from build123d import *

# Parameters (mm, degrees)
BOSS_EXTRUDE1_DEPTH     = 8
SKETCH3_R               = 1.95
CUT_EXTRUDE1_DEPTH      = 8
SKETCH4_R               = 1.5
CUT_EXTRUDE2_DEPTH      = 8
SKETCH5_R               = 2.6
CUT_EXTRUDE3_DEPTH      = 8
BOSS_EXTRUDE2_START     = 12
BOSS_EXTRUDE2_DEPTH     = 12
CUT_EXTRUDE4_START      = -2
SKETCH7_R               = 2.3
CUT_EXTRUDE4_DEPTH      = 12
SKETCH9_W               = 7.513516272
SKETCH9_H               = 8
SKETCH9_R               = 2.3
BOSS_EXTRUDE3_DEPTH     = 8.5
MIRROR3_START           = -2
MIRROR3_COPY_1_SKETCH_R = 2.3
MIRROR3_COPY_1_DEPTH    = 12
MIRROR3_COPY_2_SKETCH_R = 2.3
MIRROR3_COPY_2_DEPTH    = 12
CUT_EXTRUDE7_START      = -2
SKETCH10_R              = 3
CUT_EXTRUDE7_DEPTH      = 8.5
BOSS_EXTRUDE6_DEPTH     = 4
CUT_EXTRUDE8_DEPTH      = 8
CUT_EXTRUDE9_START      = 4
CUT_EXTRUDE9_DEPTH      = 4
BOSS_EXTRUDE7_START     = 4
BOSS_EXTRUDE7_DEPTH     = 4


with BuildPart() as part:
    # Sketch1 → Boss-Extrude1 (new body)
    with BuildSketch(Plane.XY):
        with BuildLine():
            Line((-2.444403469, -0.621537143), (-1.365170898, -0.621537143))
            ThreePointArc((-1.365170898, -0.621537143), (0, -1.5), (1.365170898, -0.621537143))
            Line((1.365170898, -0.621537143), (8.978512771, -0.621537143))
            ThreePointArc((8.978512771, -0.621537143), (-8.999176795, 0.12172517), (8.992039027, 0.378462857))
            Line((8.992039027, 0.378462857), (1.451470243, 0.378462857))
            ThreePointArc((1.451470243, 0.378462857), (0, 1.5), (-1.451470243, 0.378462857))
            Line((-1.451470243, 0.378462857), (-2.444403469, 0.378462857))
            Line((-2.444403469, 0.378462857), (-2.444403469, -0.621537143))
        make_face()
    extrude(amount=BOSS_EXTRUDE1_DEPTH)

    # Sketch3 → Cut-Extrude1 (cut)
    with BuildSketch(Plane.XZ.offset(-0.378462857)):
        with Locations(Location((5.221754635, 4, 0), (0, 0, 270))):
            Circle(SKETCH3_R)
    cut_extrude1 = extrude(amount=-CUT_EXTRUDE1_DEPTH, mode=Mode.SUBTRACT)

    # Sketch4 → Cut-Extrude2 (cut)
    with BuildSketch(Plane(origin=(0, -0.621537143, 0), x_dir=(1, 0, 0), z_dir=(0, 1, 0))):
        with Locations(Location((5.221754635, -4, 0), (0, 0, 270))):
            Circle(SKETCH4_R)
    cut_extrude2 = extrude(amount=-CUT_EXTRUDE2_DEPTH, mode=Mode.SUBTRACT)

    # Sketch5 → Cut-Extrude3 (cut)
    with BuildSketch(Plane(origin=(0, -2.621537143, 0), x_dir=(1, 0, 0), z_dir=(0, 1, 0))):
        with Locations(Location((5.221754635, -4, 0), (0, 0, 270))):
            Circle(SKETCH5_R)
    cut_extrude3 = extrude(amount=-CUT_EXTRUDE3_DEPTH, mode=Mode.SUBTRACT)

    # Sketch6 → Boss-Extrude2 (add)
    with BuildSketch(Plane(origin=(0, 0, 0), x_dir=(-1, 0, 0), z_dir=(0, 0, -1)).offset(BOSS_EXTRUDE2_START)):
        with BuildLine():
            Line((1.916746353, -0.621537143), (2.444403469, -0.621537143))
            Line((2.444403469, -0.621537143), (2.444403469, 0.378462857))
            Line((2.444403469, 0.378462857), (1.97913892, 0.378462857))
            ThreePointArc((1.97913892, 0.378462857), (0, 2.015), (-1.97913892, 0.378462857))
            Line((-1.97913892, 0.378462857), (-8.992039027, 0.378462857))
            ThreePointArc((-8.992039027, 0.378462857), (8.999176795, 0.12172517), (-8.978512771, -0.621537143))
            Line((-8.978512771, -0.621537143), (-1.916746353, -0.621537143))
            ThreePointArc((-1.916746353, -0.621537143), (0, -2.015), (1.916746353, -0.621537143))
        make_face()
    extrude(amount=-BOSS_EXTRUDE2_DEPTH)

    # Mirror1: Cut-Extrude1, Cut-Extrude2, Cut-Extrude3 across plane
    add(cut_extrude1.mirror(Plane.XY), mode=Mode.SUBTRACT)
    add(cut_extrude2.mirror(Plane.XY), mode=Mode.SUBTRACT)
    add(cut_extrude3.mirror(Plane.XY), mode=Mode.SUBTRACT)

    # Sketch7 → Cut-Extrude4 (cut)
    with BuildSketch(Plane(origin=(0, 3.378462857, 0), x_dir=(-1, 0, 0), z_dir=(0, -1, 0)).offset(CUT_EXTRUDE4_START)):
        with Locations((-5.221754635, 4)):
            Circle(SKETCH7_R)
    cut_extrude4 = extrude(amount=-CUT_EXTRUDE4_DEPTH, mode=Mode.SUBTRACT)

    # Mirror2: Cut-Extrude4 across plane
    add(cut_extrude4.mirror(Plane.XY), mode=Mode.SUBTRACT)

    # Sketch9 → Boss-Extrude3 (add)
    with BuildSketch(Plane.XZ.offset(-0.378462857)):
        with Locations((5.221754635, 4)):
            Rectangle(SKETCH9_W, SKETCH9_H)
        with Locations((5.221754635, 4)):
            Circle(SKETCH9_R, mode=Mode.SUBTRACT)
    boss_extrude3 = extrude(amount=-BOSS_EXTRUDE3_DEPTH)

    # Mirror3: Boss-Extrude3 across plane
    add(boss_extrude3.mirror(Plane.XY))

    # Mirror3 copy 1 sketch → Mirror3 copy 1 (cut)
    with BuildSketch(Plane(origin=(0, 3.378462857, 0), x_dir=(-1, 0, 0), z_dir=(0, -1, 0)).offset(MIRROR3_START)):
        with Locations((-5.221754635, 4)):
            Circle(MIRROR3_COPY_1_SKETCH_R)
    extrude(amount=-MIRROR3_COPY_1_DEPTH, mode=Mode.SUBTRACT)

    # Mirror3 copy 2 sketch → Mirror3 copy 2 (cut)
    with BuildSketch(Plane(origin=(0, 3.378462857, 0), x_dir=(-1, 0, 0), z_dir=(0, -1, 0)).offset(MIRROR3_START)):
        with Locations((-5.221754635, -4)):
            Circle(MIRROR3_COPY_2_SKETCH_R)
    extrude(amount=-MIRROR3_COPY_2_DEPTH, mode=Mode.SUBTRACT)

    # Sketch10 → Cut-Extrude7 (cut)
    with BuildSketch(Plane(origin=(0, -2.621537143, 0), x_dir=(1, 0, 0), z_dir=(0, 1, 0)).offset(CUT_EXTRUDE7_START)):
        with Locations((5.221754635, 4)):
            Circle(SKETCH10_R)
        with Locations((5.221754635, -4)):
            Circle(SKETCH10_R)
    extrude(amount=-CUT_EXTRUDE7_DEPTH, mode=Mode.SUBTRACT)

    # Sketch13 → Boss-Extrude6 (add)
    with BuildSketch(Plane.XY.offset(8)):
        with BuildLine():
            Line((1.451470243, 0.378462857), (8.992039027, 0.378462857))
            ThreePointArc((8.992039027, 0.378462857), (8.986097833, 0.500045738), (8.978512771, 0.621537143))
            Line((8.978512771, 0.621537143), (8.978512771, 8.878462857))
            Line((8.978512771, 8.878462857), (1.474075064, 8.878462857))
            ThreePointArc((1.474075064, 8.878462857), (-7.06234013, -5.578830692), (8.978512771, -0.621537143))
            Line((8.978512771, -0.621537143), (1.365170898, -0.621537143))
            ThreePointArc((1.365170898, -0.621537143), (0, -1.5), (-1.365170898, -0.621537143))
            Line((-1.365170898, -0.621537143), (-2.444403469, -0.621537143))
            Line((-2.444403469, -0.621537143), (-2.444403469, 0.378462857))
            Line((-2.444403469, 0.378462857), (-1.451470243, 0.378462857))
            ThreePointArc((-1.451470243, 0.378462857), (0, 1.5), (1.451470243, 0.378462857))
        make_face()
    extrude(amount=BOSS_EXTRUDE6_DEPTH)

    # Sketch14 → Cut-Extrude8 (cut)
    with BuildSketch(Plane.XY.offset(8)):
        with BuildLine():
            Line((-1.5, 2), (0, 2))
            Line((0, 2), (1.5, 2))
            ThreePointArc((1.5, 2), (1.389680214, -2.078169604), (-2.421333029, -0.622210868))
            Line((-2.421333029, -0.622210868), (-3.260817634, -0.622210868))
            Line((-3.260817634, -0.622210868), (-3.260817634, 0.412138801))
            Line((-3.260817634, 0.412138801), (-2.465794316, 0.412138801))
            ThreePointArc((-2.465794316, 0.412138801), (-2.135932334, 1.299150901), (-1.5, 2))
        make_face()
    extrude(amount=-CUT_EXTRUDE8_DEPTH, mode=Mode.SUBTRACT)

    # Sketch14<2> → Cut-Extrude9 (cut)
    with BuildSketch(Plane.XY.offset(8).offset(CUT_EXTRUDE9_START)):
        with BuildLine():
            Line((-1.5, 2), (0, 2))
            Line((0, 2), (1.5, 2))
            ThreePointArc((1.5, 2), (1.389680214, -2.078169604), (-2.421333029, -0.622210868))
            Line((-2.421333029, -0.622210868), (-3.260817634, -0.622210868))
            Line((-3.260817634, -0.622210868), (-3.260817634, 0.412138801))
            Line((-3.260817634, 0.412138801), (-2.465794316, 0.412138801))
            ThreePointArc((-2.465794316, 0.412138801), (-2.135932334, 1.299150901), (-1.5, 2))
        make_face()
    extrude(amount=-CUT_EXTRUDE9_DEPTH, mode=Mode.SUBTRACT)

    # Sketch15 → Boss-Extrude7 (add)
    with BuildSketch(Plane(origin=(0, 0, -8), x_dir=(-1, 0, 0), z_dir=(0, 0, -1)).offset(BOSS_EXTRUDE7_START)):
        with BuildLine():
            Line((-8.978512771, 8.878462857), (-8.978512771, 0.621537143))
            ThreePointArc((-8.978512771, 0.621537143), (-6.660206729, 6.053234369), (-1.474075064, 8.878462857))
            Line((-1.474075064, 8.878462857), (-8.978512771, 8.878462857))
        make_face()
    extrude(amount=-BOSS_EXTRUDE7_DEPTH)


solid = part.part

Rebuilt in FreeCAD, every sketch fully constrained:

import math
import FreeCAD as App
import Part
import Sketcher


def add_polygon(sketch, points):
    """Adds a closed chain of lines whose ends are joined by coincident constraints."""
    first, n = sketch.GeometryCount, len(points)
    for a, b in zip(points, points[1:] + points[:1]):
        sketch.addGeometry(Part.LineSegment(App.Vector(*a, 0), App.Vector(*b, 0)), False)
    for i in range(n):
        sketch.addConstraint(Sketcher.Constraint("Coincident", first + i, 2, first + (i + 1) % n, 1))

doc = App.newDocument("Part")
body = doc.addObject("PartDesign::Body", "Body")

sketch1 = body.newObject("Sketcher::SketchObject", "Sketch")
sketch1.AttachmentSupport = (doc.getObject("XY_Plane"), [""])
sketch1.MapMode = "FlatFace"
sketch1.addGeometry([
    Part.LineSegment(App.Vector(-1.4, -0.6, 0), App.Vector(-2.4, -0.6, 0)),
    Part.LineSegment(App.Vector(-2.4, -0.6, 0), App.Vector(-2.4, 0.4, 0)),
    Part.LineSegment(App.Vector(-2.4, 0.4, 0), App.Vector(-1.5, 0.4, 0)),
    Part.ArcOfCircle(Part.Circle(App.Vector(0, 0, 0), App.Vector(0, 0, 1), 1.5), math.radians(15), math.radians(165)),
    Part.LineSegment(App.Vector(1.5, 0.4, 0), App.Vector(9, 0.4, 0)),
    Part.ArcOfCircle(Part.Circle(App.Vector(0, 0, 0), App.Vector(0, 0, 1), 9), math.radians(2), math.radians(356)),
    Part.LineSegment(App.Vector(9, -0.6, 0), App.Vector(1.4, -0.6, 0)),
    Part.ArcOfCircle(Part.Circle(App.Vector(0, 0, 0), App.Vector(0, 0, 1), 1.5), math.radians(-156), math.radians(-24)),
], False)
sketch1.addConstraint([
    Sketcher.Constraint("Coincident", 0, 2, 1, 1),
    Sketcher.Constraint("Coincident", 1, 2, 2, 1),
    Sketcher.Constraint("Coincident", 2, 2, 3, 2),
    Sketcher.Constraint("Coincident", 3, 1, 4, 1),
    Sketcher.Constraint("Coincident", 4, 2, 5, 1),
    Sketcher.Constraint("Coincident", 5, 2, 6, 1),
    Sketcher.Constraint("Coincident", 6, 2, 7, 2),
    Sketcher.Constraint("Coincident", 7, 1, 0, 1),
    Sketcher.Constraint("Horizontal", 0),
    Sketcher.Constraint("Vertical", 1),
    Sketcher.Constraint("Horizontal", 2),
    Sketcher.Constraint("Horizontal", 4),
    Sketcher.Constraint("Horizontal", 6),
    Sketcher.Constraint("Coincident", 3, 3, -1, 1),
    Sketcher.Constraint("Coincident", 5, 3, -1, 1),
    Sketcher.Constraint("Coincident", 7, 3, -1, 1),
    Sketcher.Constraint("Equal", 3, 7),
    Sketcher.Constraint("Horizontal", 2, 2, 3, 1),
    Sketcher.Constraint("Horizontal", 0, 2, 5, 2),
    Sketcher.Constraint("Radius", 5, 9.0),
    Sketcher.Constraint("Radius", 3, 1.5),
    Sketcher.Constraint("DistanceY", 1, 1, 1, 2, 1.0),
    Sketcher.Constraint("DistanceX", 4, 1, 4, 2, 7.540569),
    Sketcher.Constraint("DistanceX", 0, 2, 0, 1, 1.079233),
])
pad1 = body.newObject("PartDesign::Pad", "Pad")
pad1.Profile = sketch1
pad1.Length = 8

sketch2 = body.newObject("Sketcher::SketchObject", "Sketch001")
sketch2.AttachmentSupport = (doc.getObject("XZ_Plane"), [""])
sketch2.MapMode = "FlatFace"
sketch2.AttachmentOffset = App.Placement(App.Vector(0, 0, -0.378463), App.Rotation())
sketch2.addGeometry(Part.Circle(App.Vector(5.2, 4, 0), App.Vector(0, 0, 1), 1.9), False)
sketch2.addConstraint([
    Sketcher.Constraint("Diameter", 0, 3.9),
    Sketcher.Constraint("DistanceY", -1, 1, 0, 3, 4.0),
    Sketcher.Constraint("DistanceX", -1, 1, 0, 3, 5.221755),
])
pocket1 = body.newObject("PartDesign::Pocket", "Pocket")
pocket1.Profile = sketch2
pocket1.Length = 8

sketch3 = body.newObject("Sketcher::SketchObject", "Sketch002")
sketch3.AttachmentSupport = (doc.getObject("XZ_Plane"), [""])
sketch3.MapMode = "FlatFace"
sketch3.AttachmentOffset = App.Placement(App.Vector(0, 0, 0.621537), App.Rotation())
sketch3.addGeometry(Part.Circle(App.Vector(5.2, 4, 0), App.Vector(0, 0, 1), 1.5), False)
sketch3.addConstraint([
    Sketcher.Constraint("Diameter", 0, 3.0),
    Sketcher.Constraint("DistanceY", -1, 1, 0, 3, 4.0),
    Sketcher.Constraint("DistanceX", -1, 1, 0, 3, 5.221755),
])
pocket2 = body.newObject("PartDesign::Pocket", "Pocket001")
pocket2.Profile = sketch3
pocket2.Length = 8
pocket2.Reversed = True

sketch4 = body.newObject("Sketcher::SketchObject", "Sketch003")
sketch4.AttachmentSupport = (doc.getObject("XZ_Plane"), [""])
sketch4.MapMode = "FlatFace"
sketch4.AttachmentOffset = App.Placement(App.Vector(0, 0, 2.621537), App.Rotation())
sketch4.addGeometry(Part.Circle(App.Vector(5.2, 4, 0), App.Vector(0, 0, 1), 2.6), False)
sketch4.addConstraint([
    Sketcher.Constraint("Diameter", 0, 5.2),
    Sketcher.Constraint("DistanceY", -1, 1, 0, 3, 4.0),
    Sketcher.Constraint("DistanceX", -1, 1, 0, 3, 5.221755),
])
pocket3 = body.newObject("PartDesign::Pocket", "Pocket002")
pocket3.Profile = sketch4
pocket3.Length = 8
pocket3.Reversed = True

sketch5 = body.newObject("Sketcher::SketchObject", "Sketch004")
sketch5.AttachmentSupport = (doc.getObject("XY_Plane"), [""])
sketch5.MapMode = "FlatFace"
sketch5.AttachmentOffset = App.Placement(App.Vector(0, 0, -12), App.Rotation())
sketch5.addGeometry([
    Part.LineSegment(App.Vector(-2.44, -0.62, 0), App.Vector(-1.92, -0.62, 0)),
    Part.ArcOfCircle(Part.Circle(App.Vector(0, 0, 0), App.Vector(0, 0, 1), 2.02), math.radians(-162), math.radians(-18)),
    Part.LineSegment(App.Vector(1.92, -0.62, 0), App.Vector(8.98, -0.62, 0)),
    Part.ArcOfCircle(Part.Circle(App.Vector(0, 0, 0), App.Vector(0, 0, 1), 9), math.radians(2), math.radians(356)),
    Part.LineSegment(App.Vector(8.99, 0.38, 0), App.Vector(1.98, 0.38, 0)),
    Part.ArcOfCircle(Part.Circle(App.Vector(0, 0, 0), App.Vector(0, 0, 1), 2.02), math.radians(11), math.radians(169)),
    Part.LineSegment(App.Vector(-1.98, 0.38, 0), App.Vector(-2.44, 0.38, 0)),
    Part.LineSegment(App.Vector(-2.44, 0.38, 0), App.Vector(-2.44, -0.62, 0)),
], False)
sketch5.addConstraint([
    Sketcher.Constraint("Coincident", 0, 2, 1, 1),
    Sketcher.Constraint("Coincident", 1, 2, 2, 1),
    Sketcher.Constraint("Coincident", 2, 2, 3, 2),
    Sketcher.Constraint("Coincident", 3, 1, 4, 1),
    Sketcher.Constraint("Coincident", 4, 2, 5, 1),
    Sketcher.Constraint("Coincident", 5, 2, 6, 1),
    Sketcher.Constraint("Coincident", 6, 2, 7, 1),
    Sketcher.Constraint("Coincident", 7, 2, 0, 1),
    Sketcher.Constraint("Horizontal", 0),
    Sketcher.Constraint("Horizontal", 2),
    Sketcher.Constraint("Horizontal", 4),
    Sketcher.Constraint("Horizontal", 6),
    Sketcher.Constraint("Vertical", 7),
    Sketcher.Constraint("Coincident", 1, 3, -1, 1),
    Sketcher.Constraint("Coincident", 3, 3, -1, 1),
    Sketcher.Constraint("Coincident", 5, 3, -1, 1),
    Sketcher.Constraint("Equal", 1, 5),
    Sketcher.Constraint("Horizontal", 0, 2, 1, 2),
    Sketcher.Constraint("Horizontal", 4, 2, 5, 2),
    Sketcher.Constraint("Radius", 3, 9.0),
    Sketcher.Constraint("DistanceY", 7, 2, 7, 1, 1.0),
    Sketcher.Constraint("Radius", 1, 2.015),
    Sketcher.Constraint("DistanceX", 4, 2, 4, 1, 7.0129),
    Sketcher.Constraint("DistanceX", 0, 1, 0, 2, 0.527657),
])
pad2 = body.newObject("PartDesign::Pad", "Pad001")
pad2.Profile = sketch5
pad2.Length = 12
doc.recompute()

mirrored = body.newObject("PartDesign::Mirrored", "Mirrored")
mirrored.Originals = [pocket1, pocket2, pocket3]
mirrored.MirrorPlane = (doc.getObject("XY_Plane"), [""])
body.Tip = mirrored

sketch6 = body.newObject("Sketcher::SketchObject", "Sketch005")
sketch6.AttachmentSupport = (doc.getObject("XZ_Plane"), [""])
sketch6.MapMode = "FlatFace"
sketch6.AttachmentOffset = App.Placement(App.Vector(0, 0, -5.378463), App.Rotation())
sketch6.addGeometry(Part.Circle(App.Vector(5.2, -4, 0), App.Vector(0, 0, 1), 2.3), False)
sketch6.addConstraint([
    Sketcher.Constraint("Diameter", 0, 4.6),
    Sketcher.Constraint("DistanceY", 0, 3, -1, 1, 4.0),
    Sketcher.Constraint("DistanceX", -1, 1, 0, 3, 5.221755),
])
pocket4 = body.newObject("PartDesign::Pocket", "Pocket003")
pocket4.Profile = sketch6
pocket4.Length = 12
doc.recompute()

mirrored2 = body.newObject("PartDesign::Mirrored", "Mirrored001")
mirrored2.Originals = [pocket4]
mirrored2.MirrorPlane = (doc.getObject("XY_Plane"), [""])
body.Tip = mirrored2

sketch7 = body.newObject("Sketcher::SketchObject", "Sketch006")
sketch7.AttachmentSupport = (doc.getObject("XZ_Plane"), [""])
sketch7.MapMode = "FlatFace"
sketch7.AttachmentOffset = App.Placement(App.Vector(0, 0, -0.378463), App.Rotation())
add_polygon(sketch7, [(1.5, 8), (1.5, 0), (9, 0), (9, 8)])
sketch7.addGeometry(Part.Circle(App.Vector(5.2, 4, 0), App.Vector(0, 0, 1), 2.3), False)
sketch7.addConstraint([
    Sketcher.Constraint("Vertical", 0),
    Sketcher.Constraint("Horizontal", 1),
    Sketcher.Constraint("Vertical", 2),
    Sketcher.Constraint("Horizontal", 3),
    Sketcher.Constraint("PointOnObject", 0, 2, -1),
    Sketcher.Constraint("Diameter", 4, 4.6),
    Sketcher.Constraint("DistanceY", 0, 2, 0, 1, 8.0),
    Sketcher.Constraint("DistanceY", -1, 1, 4, 3, 4.0),
    Sketcher.Constraint("DistanceX", 1, 1, 1, 2, 7.513516),
    Sketcher.Constraint("DistanceX", 0, 2, 4, 3, 3.756758),
    Sketcher.Constraint("DistanceX", -1, 1, 4, 3, 5.221755),
])
pad3 = body.newObject("PartDesign::Pad", "Pad002")
pad3.Profile = sketch7
pad3.Length = 8.5
pad3.Reversed = True
doc.recompute()

mirrored3 = body.newObject("PartDesign::Mirrored", "Mirrored002")
mirrored3.Originals = [pad3]
mirrored3.MirrorPlane = (doc.getObject("XY_Plane"), [""])
body.Tip = mirrored3

sketch8 = body.newObject("Sketcher::SketchObject", "Sketch007")
sketch8.AttachmentSupport = (doc.getObject("XZ_Plane"), [""])
sketch8.MapMode = "FlatFace"
sketch8.AttachmentOffset = App.Placement(App.Vector(0, 0, -5.378463), App.Rotation())
sketch8.addGeometry(Part.Circle(App.Vector(5.2, -4, 0), App.Vector(0, 0, 1), 2.3), False)
sketch8.addConstraint([
    Sketcher.Constraint("Diameter", 0, 4.6),
    Sketcher.Constraint("DistanceY", 0, 3, -1, 1, 4.0),
    Sketcher.Constraint("DistanceX", -1, 1, 0, 3, 5.221755),
])
pocket5 = body.newObject("PartDesign::Pocket", "Pocket004")
pocket5.Profile = sketch8
pocket5.Length = 12

sketch9 = body.newObject("Sketcher::SketchObject", "Sketch008")
sketch9.AttachmentSupport = (doc.getObject("XZ_Plane"), [""])
sketch9.MapMode = "FlatFace"
sketch9.AttachmentOffset = App.Placement(App.Vector(0, 0, -5.378463), App.Rotation())
sketch9.addGeometry(Part.Circle(App.Vector(5.2, 4, 0), App.Vector(0, 0, 1), 2.3), False)
sketch9.addConstraint([
    Sketcher.Constraint("Diameter", 0, 4.6),
    Sketcher.Constraint("DistanceY", -1, 1, 0, 3, 4.0),
    Sketcher.Constraint("DistanceX", -1, 1, 0, 3, 5.221755),
])
pocket6 = body.newObject("PartDesign::Pocket", "Pocket005")
pocket6.Profile = sketch9
pocket6.Length = 12

sketch10 = body.newObject("Sketcher::SketchObject", "Sketch009")
sketch10.AttachmentSupport = (doc.getObject("XZ_Plane"), [""])
sketch10.MapMode = "FlatFace"
sketch10.AttachmentOffset = App.Placement(App.Vector(0, 0, 4.621537), App.Rotation())
sketch10.addGeometry([
    Part.Circle(App.Vector(5.2, -4, 0), App.Vector(0, 0, 1), 3),
    Part.Circle(App.Vector(5.2, 4, 0), App.Vector(0, 0, 1), 3),
], False)
sketch10.addConstraint([
    Sketcher.Constraint("Equal", 0, 1),
    Sketcher.Constraint("Symmetric", 0, 3, 1, 3, -1),
    Sketcher.Constraint("Diameter", 0, 6.0),
    Sketcher.Constraint("DistanceY", 0, 3, -1, 1, 4.0),
    Sketcher.Constraint("DistanceX", -1, 1, 0, 3, 5.221755),
])
pocket7 = body.newObject("PartDesign::Pocket", "Pocket006")
pocket7.Profile = sketch10
pocket7.Length = 8.5
pocket7.Reversed = True

sketch11 = body.newObject("Sketcher::SketchObject", "Sketch010")
sketch11.AttachmentSupport = (doc.getObject("XY_Plane"), [""])
sketch11.MapMode = "FlatFace"
sketch11.AttachmentOffset = App.Placement(App.Vector(0, 0, 8), App.Rotation())
sketch11.addGeometry([
    Part.LineSegment(App.Vector(1.45, 0.38, 0), App.Vector(8.99, 0.38, 0)),
    Part.ArcOfCircle(Part.Circle(App.Vector(0, 0, 0), App.Vector(0, 0, 1), 9), math.radians(2.41), math.radians(3.96)),
    Part.LineSegment(App.Vector(8.98, 0.62, 0), App.Vector(8.98, 8.88, 0)),
    Part.LineSegment(App.Vector(8.98, 8.88, 0), App.Vector(1.47, 8.88, 0)),
    Part.ArcOfCircle(Part.Circle(App.Vector(0, 0, 0), App.Vector(0, 0, 1), 9), math.radians(81), math.radians(356)),
    Part.LineSegment(App.Vector(8.98, -0.62, 0), App.Vector(1.37, -0.62, 0)),
    Part.ArcOfCircle(Part.Circle(App.Vector(0, 0, 0), App.Vector(0, 0, 1), 1.5), math.radians(-156), math.radians(-24)),
    Part.LineSegment(App.Vector(-1.37, -0.62, 0), App.Vector(-2.44, -0.62, 0)),
    Part.LineSegment(App.Vector(-2.44, -0.62, 0), App.Vector(-2.44, 0.38, 0)),
    Part.LineSegment(App.Vector(-2.44, 0.38, 0), App.Vector(-1.45, 0.38, 0)),
    Part.ArcOfCircle(Part.Circle(App.Vector(0, 0, 0), App.Vector(0, 0, 1), 1.5), math.radians(15), math.radians(165)),
], False)
sketch11.addConstraint([
    Sketcher.Constraint("Coincident", 0, 2, 1, 1),
    Sketcher.Constraint("Coincident", 1, 2, 2, 1),
    Sketcher.Constraint("Coincident", 2, 2, 3, 1),
    Sketcher.Constraint("Coincident", 3, 2, 4, 1),
    Sketcher.Constraint("Coincident", 4, 2, 5, 1),
    Sketcher.Constraint("Coincident", 5, 2, 6, 2),
    Sketcher.Constraint("Coincident", 6, 1, 7, 1),
    Sketcher.Constraint("Coincident", 7, 2, 8, 1),
    Sketcher.Constraint("Coincident", 8, 2, 9, 1),
    Sketcher.Constraint("Coincident", 9, 2, 10, 2),
    Sketcher.Constraint("Coincident", 10, 1, 0, 1),
    Sketcher.Constraint("Horizontal", 0),
    Sketcher.Constraint("Vertical", 2),
    Sketcher.Constraint("Horizontal", 3),
    Sketcher.Constraint("Horizontal", 5),
    Sketcher.Constraint("Horizontal", 7),
    Sketcher.Constraint("Vertical", 8),
    Sketcher.Constraint("Horizontal", 9),
    Sketcher.Constraint("Coincident", 1, 3, -1, 1),
    Sketcher.Constraint("Coincident", 4, 3, -1, 1),
    Sketcher.Constraint("Coincident", 6, 3, -1, 1),
    Sketcher.Constraint("Coincident", 10, 3, -1, 1),
    Sketcher.Constraint("Equal", 6, 10),
    Sketcher.Constraint("Symmetric", 1, 2, 4, 2, -1),
    Sketcher.Constraint("Horizontal", 5, 2, 6, 1),
    Sketcher.Constraint("Horizontal", 0, 2, 8, 2),
    Sketcher.Constraint("Radius", 4, 9.0),
    Sketcher.Constraint("Radius", 6, 1.5),
    Sketcher.Constraint("DistanceY", 8, 1, 8, 2, 1.0),
    Sketcher.Constraint("DistanceY", 0, 2, 2, 2, 8.5),
    Sketcher.Constraint("DistanceX", 0, 1, 0, 2, 7.540569),
    Sketcher.Constraint("DistanceX", 7, 2, 7, 1, 1.079233),
])
pad4 = body.newObject("PartDesign::Pad", "Pad003")
pad4.Profile = sketch11
pad4.Length = 4

sketch12 = body.newObject("Sketcher::SketchObject", "Sketch011")
sketch12.AttachmentSupport = (doc.getObject("XY_Plane"), [""])
sketch12.MapMode = "FlatFace"
sketch12.AttachmentOffset = App.Placement(App.Vector(0, 0, 8), App.Rotation())
sketch12.addGeometry([
    Part.LineSegment(App.Vector(1.5, 2, 0), App.Vector(-1.5, 2, 0)),
    Part.ArcOfCircle(Part.Circle(App.Vector(0, 0, 0), App.Vector(0, 0, 1), 2.5), math.radians(127), math.radians(171)),
    Part.LineSegment(App.Vector(-2.5, 0.4, 0), App.Vector(-3.3, 0.4, 0)),
    Part.LineSegment(App.Vector(-3.3, 0.4, 0), App.Vector(-3.3, -0.6, 0)),
    Part.LineSegment(App.Vector(-3.3, -0.6, 0), App.Vector(-2.4, -0.6, 0)),
    Part.ArcOfCircle(Part.Circle(App.Vector(0, 0, 0), App.Vector(0, 0, 1), 2.5), math.radians(-166), math.radians(53)),
], False)
sketch12.addConstraint([
    Sketcher.Constraint("Coincident", 0, 2, 1, 1),
    Sketcher.Constraint("Coincident", 1, 2, 2, 1),
    Sketcher.Constraint("Coincident", 2, 2, 3, 1),
    Sketcher.Constraint("Coincident", 3, 2, 4, 1),
    Sketcher.Constraint("Coincident", 4, 2, 5, 1),
    Sketcher.Constraint("Coincident", 5, 2, 0, 1),
    Sketcher.Constraint("Horizontal", 0),
    Sketcher.Constraint("Horizontal", 2),
    Sketcher.Constraint("Vertical", 3),
    Sketcher.Constraint("Horizontal", 4),
    Sketcher.Constraint("Coincident", 1, 3, -1, 1),
    Sketcher.Constraint("Coincident", 5, 3, -1, 1),
    Sketcher.Constraint("Equal", 1, 5),
    Sketcher.Constraint("Radius", 1, 2.5),
    Sketcher.Constraint("DistanceX", 0, 2, 0, 1, 3.0),
    Sketcher.Constraint("DistanceY", 3, 2, 3, 1, 1.03435),
    Sketcher.Constraint("DistanceX", 2, 2, 2, 1, 0.795023),
    Sketcher.Constraint("DistanceX", 4, 1, 4, 2, 0.839485),
])
pocket8 = body.newObject("PartDesign::Pocket", "Pocket007")
pocket8.Profile = sketch12
pocket8.Length = 8

sketch13 = body.newObject("Sketcher::SketchObject", "Sketch012")
sketch13.AttachmentSupport = (doc.getObject("XY_Plane"), [""])
sketch13.MapMode = "FlatFace"
sketch13.AttachmentOffset = App.Placement(App.Vector(0, 0, 12), App.Rotation())
sketch13.addGeometry([
    Part.LineSegment(App.Vector(1.5, 2, 0), App.Vector(-1.5, 2, 0)),
    Part.ArcOfCircle(Part.Circle(App.Vector(0, 0, 0), App.Vector(0, 0, 1), 2.5), math.radians(127), math.radians(171)),
    Part.LineSegment(App.Vector(-2.5, 0.4, 0), App.Vector(-3.3, 0.4, 0)),
    Part.LineSegment(App.Vector(-3.3, 0.4, 0), App.Vector(-3.3, -0.6, 0)),
    Part.LineSegment(App.Vector(-3.3, -0.6, 0), App.Vector(-2.4, -0.6, 0)),
    Part.ArcOfCircle(Part.Circle(App.Vector(0, 0, 0), App.Vector(0, 0, 1), 2.5), math.radians(-166), math.radians(53)),
], False)
sketch13.addConstraint([
    Sketcher.Constraint("Coincident", 0, 2, 1, 1),
    Sketcher.Constraint("Coincident", 1, 2, 2, 1),
    Sketcher.Constraint("Coincident", 2, 2, 3, 1),
    Sketcher.Constraint("Coincident", 3, 2, 4, 1),
    Sketcher.Constraint("Coincident", 4, 2, 5, 1),
    Sketcher.Constraint("Coincident", 5, 2, 0, 1),
    Sketcher.Constraint("Horizontal", 0),
    Sketcher.Constraint("Horizontal", 2),
    Sketcher.Constraint("Vertical", 3),
    Sketcher.Constraint("Horizontal", 4),
    Sketcher.Constraint("Coincident", 1, 3, -1, 1),
    Sketcher.Constraint("Coincident", 5, 3, -1, 1),
    Sketcher.Constraint("Equal", 1, 5),
    Sketcher.Constraint("Radius", 1, 2.5),
    Sketcher.Constraint("DistanceX", 0, 2, 0, 1, 3.0),
    Sketcher.Constraint("DistanceY", 3, 2, 3, 1, 1.03435),
    Sketcher.Constraint("DistanceX", 2, 2, 2, 1, 0.795023),
    Sketcher.Constraint("DistanceX", 4, 1, 4, 2, 0.839485),
])
pocket9 = body.newObject("PartDesign::Pocket", "Pocket008")
pocket9.Profile = sketch13
pocket9.Length = 4

sketch14 = body.newObject("Sketcher::SketchObject", "Sketch013")
sketch14.AttachmentSupport = (doc.getObject("XY_Plane"), [""])
sketch14.MapMode = "FlatFace"
sketch14.AttachmentOffset = App.Placement(App.Vector(0, 0, -12), App.Rotation())
sketch14.addGeometry([
    Part.LineSegment(App.Vector(9, 9, 0), App.Vector(9, 1, 0)),
    Part.ArcOfCircle(Part.Circle(App.Vector(0, 0, 0), App.Vector(0, 0, 1), 9), math.radians(4), math.radians(81)),
    Part.LineSegment(App.Vector(1, 9, 0), App.Vector(9, 9, 0)),
], False)
sketch14.addConstraint([
    Sketcher.Constraint("Coincident", 0, 2, 1, 1),
    Sketcher.Constraint("Coincident", 1, 2, 2, 1),
    Sketcher.Constraint("Coincident", 2, 2, 0, 1),
    Sketcher.Constraint("Vertical", 0),
    Sketcher.Constraint("Horizontal", 2),
    Sketcher.Constraint("Coincident", 1, 3, -1, 1),
    Sketcher.Constraint("Radius", 1, 9.0),
    Sketcher.Constraint("DistanceX", 2, 1, 2, 2, 7.504438),
    Sketcher.Constraint("DistanceY", 0, 2, 0, 1, 8.256926),
])
pad5 = body.newObject("PartDesign::Pad", "Pad004")
pad5.Profile = sketch14
pad5.Length = 4

doc.recompute()
